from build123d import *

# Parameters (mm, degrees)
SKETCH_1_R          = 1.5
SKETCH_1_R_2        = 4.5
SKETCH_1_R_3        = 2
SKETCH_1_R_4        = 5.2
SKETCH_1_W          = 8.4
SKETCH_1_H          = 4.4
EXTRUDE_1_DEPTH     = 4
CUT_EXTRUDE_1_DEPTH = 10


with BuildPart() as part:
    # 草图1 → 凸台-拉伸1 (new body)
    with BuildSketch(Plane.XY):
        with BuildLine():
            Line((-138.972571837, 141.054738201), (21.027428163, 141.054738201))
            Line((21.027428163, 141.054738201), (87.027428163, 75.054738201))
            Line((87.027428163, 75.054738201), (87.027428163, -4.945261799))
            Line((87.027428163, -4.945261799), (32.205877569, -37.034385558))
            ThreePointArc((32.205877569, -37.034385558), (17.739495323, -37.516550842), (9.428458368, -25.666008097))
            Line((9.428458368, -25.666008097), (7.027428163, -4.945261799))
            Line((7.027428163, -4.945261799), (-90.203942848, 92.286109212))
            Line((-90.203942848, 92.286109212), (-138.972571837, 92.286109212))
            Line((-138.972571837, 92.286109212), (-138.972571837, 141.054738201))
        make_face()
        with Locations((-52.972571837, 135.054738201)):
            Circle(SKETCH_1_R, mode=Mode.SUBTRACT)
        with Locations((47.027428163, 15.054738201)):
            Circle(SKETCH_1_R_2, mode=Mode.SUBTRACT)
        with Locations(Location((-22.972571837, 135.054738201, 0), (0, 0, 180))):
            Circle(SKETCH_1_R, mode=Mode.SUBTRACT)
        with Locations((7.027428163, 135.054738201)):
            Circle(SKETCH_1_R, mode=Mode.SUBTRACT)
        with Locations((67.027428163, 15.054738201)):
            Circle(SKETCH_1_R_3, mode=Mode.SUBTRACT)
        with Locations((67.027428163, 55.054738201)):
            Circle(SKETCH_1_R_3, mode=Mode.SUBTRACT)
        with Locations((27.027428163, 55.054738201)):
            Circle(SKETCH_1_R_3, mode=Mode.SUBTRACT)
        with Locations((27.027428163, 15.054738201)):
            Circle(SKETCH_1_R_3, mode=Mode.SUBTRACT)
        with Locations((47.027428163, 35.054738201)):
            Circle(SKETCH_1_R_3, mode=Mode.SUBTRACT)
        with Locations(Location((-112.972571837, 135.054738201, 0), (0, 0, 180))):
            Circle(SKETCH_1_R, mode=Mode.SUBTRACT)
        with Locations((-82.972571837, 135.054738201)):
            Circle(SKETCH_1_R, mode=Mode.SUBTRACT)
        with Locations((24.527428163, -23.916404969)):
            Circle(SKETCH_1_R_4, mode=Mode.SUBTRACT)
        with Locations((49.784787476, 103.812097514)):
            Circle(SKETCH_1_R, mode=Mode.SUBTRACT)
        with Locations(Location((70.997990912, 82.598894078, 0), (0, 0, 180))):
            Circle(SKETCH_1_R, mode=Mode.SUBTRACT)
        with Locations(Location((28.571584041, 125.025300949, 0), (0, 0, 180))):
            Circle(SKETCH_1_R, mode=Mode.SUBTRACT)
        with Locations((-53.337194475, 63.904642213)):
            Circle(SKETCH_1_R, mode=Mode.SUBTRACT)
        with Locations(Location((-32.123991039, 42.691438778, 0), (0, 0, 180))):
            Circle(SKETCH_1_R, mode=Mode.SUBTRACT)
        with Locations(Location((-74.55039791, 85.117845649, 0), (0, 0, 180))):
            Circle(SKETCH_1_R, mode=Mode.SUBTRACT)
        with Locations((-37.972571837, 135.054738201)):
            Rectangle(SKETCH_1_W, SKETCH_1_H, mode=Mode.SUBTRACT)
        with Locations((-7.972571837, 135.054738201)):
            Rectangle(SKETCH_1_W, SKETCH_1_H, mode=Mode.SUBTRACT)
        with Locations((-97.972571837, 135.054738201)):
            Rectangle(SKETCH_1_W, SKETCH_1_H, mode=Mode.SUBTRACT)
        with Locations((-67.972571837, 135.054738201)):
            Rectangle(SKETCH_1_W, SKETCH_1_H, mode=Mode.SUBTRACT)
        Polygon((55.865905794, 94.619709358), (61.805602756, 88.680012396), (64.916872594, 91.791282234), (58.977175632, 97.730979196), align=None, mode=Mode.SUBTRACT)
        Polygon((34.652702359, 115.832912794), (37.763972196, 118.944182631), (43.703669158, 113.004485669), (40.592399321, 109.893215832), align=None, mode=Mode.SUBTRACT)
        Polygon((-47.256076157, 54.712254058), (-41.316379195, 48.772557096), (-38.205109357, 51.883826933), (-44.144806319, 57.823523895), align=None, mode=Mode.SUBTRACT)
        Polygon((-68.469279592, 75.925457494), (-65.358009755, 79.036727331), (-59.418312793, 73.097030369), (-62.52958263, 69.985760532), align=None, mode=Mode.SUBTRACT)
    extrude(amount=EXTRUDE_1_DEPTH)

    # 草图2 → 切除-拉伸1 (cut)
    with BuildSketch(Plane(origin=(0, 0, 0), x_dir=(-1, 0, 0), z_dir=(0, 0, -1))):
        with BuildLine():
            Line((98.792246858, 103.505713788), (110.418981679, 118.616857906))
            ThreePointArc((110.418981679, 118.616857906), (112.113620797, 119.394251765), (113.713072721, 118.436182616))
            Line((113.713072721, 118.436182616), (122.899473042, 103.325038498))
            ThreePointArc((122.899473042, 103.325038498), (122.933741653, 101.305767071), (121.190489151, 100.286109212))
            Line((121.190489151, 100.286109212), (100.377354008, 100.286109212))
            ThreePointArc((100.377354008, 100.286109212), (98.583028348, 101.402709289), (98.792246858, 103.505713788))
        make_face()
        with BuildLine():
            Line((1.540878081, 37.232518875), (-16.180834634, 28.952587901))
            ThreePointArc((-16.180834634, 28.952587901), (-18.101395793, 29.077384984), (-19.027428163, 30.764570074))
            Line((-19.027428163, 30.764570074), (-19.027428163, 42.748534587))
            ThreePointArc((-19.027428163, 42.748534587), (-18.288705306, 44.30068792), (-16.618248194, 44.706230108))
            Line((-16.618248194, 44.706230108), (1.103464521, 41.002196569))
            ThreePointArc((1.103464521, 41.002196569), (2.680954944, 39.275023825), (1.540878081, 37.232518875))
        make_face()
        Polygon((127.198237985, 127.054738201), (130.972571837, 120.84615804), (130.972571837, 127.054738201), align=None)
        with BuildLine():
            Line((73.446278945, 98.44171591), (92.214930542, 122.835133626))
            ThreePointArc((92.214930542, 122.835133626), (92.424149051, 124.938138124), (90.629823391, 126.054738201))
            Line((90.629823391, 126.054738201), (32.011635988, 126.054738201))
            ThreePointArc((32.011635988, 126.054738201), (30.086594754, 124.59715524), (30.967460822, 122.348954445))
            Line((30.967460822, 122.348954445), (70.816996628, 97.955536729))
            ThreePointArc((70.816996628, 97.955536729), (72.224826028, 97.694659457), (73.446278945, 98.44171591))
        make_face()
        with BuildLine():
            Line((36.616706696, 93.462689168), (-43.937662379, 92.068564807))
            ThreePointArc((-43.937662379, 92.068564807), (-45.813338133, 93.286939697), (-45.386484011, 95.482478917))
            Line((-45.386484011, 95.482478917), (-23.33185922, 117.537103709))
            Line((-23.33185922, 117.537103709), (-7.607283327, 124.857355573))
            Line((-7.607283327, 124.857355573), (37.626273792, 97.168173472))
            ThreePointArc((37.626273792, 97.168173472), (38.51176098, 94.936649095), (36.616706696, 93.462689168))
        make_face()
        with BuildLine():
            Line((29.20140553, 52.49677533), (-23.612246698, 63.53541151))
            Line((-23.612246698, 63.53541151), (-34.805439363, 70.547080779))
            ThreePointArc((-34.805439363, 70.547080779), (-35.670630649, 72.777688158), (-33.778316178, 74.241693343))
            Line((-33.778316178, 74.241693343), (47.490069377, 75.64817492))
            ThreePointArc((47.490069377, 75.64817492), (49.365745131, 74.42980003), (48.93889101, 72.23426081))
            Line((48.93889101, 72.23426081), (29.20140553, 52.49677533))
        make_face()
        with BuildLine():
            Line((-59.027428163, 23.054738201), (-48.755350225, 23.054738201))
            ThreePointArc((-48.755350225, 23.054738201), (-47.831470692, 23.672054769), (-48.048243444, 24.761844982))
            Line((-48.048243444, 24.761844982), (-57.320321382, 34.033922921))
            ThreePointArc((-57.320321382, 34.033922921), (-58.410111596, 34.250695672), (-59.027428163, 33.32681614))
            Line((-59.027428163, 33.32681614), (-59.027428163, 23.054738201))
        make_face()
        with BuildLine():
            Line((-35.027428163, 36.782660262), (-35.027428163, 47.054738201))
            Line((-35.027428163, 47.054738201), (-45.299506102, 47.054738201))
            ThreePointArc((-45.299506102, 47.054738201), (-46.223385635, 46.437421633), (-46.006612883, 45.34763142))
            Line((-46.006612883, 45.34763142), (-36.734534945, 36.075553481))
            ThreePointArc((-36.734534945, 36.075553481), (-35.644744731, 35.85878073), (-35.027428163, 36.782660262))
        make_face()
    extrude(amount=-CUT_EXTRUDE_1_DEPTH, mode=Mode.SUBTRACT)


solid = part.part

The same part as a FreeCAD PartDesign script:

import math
import FreeCAD as App
import Part
import Sketcher
from FreeCAD import Vector
Q = App.Units.Quantity

doc = App.newDocument("Part")
params = doc.addObject("Spreadsheet::Sheet", "Params")
for row, (alias, value) in enumerate([
    ("sketch1_diameter", "4 mm"),
    ("sketch1_diameter2", "9 mm"),
    ("sketch1_diameter3", "3 mm"),
    ("sketch1_diameter4", "10.4 mm"),
    ("sketch1_radius", "15.2 mm"),
    ("pad1_length", "4 mm"),
    ("sketch2_radius", "2 mm"),
    ("sketch2_radius2", "1 mm"),
    ("pocket1_length", "10 mm"),
], start=1):
    params.set(f"A{row}", alias)
    params.set(f"B{row}", "=" + value)
    params.setAlias(f"B{row}", alias)

body = doc.addObject("PartDesign::Body", "Body")

sketch1 = body.newObject("Sketcher::SketchObject", "Sketch")
sketch1.AttachmentSupport = (doc.getObject("XY_Plane"), [""])
sketch1.MapMode = "FlatFace"
sketch1.addGeometry([
    Part.LineSegment(Vector(21.027428, 141.054738, 0), Vector(-138.972572, 141.054738, 0)),
    Part.LineSegment(Vector(-138.972572, 141.054738, 0), Vector(-138.972572, 92.286109, 0)),
    Part.LineSegment(Vector(-138.972572, 92.286109, 0), Vector(-90.203943, 92.286109, 0)),
    Part.LineSegment(Vector(-90.203943, 92.286109, 0), Vector(7.027428, -4.945262, 0)),
    Part.LineSegment(Vector(7.027428, -4.945262, 0), Vector(9.428458, -25.666008, 0)),
    Part.ArcOfCircle(Part.Circle(Vector(24.527428, -23.916405, 0), Vector(0, 0, 1), 15.2), math.radians(-173.390292), math.radians(-59.65795)),
    Part.LineSegment(Vector(32.205878, -37.034386, 0), Vector(87.027428, -4.945262, 0)),
    Part.LineSegment(Vector(87.027428, -4.945262, 0), Vector(87.027428, 75.054738, 0)),
    Part.LineSegment(Vector(87.027428, 75.054738, 0), Vector(21.027428, 141.054738, 0)),
    Part.Circle(Vector(24.527428, -23.916405, 0), Vector(0, 0, 1), 5.2),
    Part.Circle(Vector(67.027428, 15.054738, 0), Vector(0, 0, 1), 2),
    Part.Circle(Vector(47.027428, 15.054738, 0), Vector(0, 0, 1), 4.5),
    Part.Circle(Vector(27.027428, 15.054738, 0), Vector(0, 0, 1), 2),
    Part.Circle(Vector(47.027428, 35.054738, 0), Vector(0, 0, 1), 2),
    Part.Circle(Vector(-32.123991, 42.691439, 0), Vector(0, 0, 1), 1.5),
    Part.LineSegment(Vector(-47.256076, 54.712254, 0), Vector(-44.144806, 57.823524, 0)),
    Part.LineSegment(Vector(-44.144806, 57.823524, 0), Vector(-38.205109, 51.883827, 0)),
    Part.LineSegment(Vector(-38.205109, 51.883827, 0), Vector(-41.316379, 48.772557, 0)),
    Part.LineSegment(Vector(-41.316379, 48.772557, 0), Vector(-47.256076, 54.712254, 0)),
    Part.Circle(Vector(67.027428, 55.054738, 0), Vector(0, 0, 1), 2),
    Part.Circle(Vector(27.027428, 55.054738, 0), Vector(0, 0, 1), 2),
    Part.Circle(Vector(70.997991, 82.598894, 0), Vector(0, 0, 1), 1.5),
    Part.LineSegment(Vector(55.865906, 94.619709, 0), Vector(58.977176, 97.730979, 0)),
    Part.LineSegment(Vector(58.977176, 97.730979, 0), Vector(64.916873, 91.791282, 0)),
    Part.LineSegment(Vector(64.916873, 91.791282, 0), Vector(61.805603, 88.680012, 0)),
    Part.LineSegment(Vector(61.805603, 88.680012, 0), Vector(55.865906, 94.619709, 0)),
    Part.Circle(Vector(49.784787, 103.812098, 0), Vector(0, 0, 1), 1.5),
    Part.LineSegment(Vector(34.652702, 115.832913, 0), Vector(37.763972, 118.944183, 0)),
    Part.LineSegment(Vector(37.763972, 118.944183, 0), Vector(43.703669, 113.004486, 0)),
    Part.LineSegment(Vector(43.703669, 113.004486, 0), Vector(40.592399, 109.893216, 0)),
    Part.LineSegment(Vector(40.592399, 109.893216, 0), Vector(34.652702, 115.832913, 0)),
    Part.Circle(Vector(28.571584, 125.025301, 0), Vector(0, 0, 1), 1.5),
    Part.Circle(Vector(7.027428, 135.054738, 0), Vector(0, 0, 1), 1.5),
    Part.LineSegment(Vector(-12.172572, 132.854738, 0), Vector(-12.172572, 137.254738, 0)),
    Part.LineSegment(Vector(-12.172572, 137.254738, 0), Vector(-3.772572, 137.254738, 0)),
    Part.LineSegment(Vector(-3.772572, 137.254738, 0), Vector(-3.772572, 132.854738, 0)),
    Part.LineSegment(Vector(-3.772572, 132.854738, 0), Vector(-12.172572, 132.854738, 0)),
    Part.Circle(Vector(-53.337194, 63.904642, 0), Vector(0, 0, 1), 1.5),
    Part.LineSegment(Vector(-68.46928, 75.925457, 0), Vector(-65.35801, 79.036727, 0)),
    Part.LineSegment(Vector(-65.35801, 79.036727, 0), Vector(-59.418313, 73.09703, 0)),
    Part.LineSegment(Vector(-59.418313, 73.09703, 0), Vector(-62.529583, 69.985761, 0)),
    Part.LineSegment(Vector(-62.529583, 69.985761, 0), Vector(-68.46928, 75.925457, 0)),
    Part.Circle(Vector(-74.550398, 85.117846, 0), Vector(0, 0, 1), 1.5),
    Part.Circle(Vector(-22.972572, 135.054738, 0), Vector(0, 0, 1), 1.5),
    Part.LineSegment(Vector(-42.172572, 132.854738, 0), Vector(-42.172572, 137.254738, 0)),
    Part.LineSegment(Vector(-42.172572, 137.254738, 0), Vector(-33.772572, 137.254738, 0)),
    Part.LineSegment(Vector(-33.772572, 137.254738, 0), Vector(-33.772572, 132.854738, 0)),
    Part.LineSegment(Vector(-33.772572, 132.854738, 0), Vector(-42.172572, 132.854738, 0)),
    Part.Circle(Vector(-52.972572, 135.054738, 0), Vector(0, 0, 1), 1.5),
    Part.LineSegment(Vector(-72.172572, 132.854738, 0), Vector(-72.172572, 137.254738, 0)),
    Part.LineSegment(Vector(-72.172572, 137.254738, 0), Vector(-63.772572, 137.254738, 0)),
    Part.LineSegment(Vector(-63.772572, 137.254738, 0), Vector(-63.772572, 132.854738, 0)),
    Part.LineSegment(Vector(-63.772572, 132.854738, 0), Vector(-72.172572, 132.854738, 0)),
    Part.Circle(Vector(-82.972572, 135.054738, 0), Vector(0, 0, 1), 1.5),
    Part.LineSegment(Vector(-102.172572, 132.854738, 0), Vector(-102.172572, 137.254738, 0)),
    Part.LineSegment(Vector(-102.172572, 137.254738, 0), Vector(-93.772572, 137.254738, 0)),
    Part.LineSegment(Vector(-93.772572, 137.254738, 0), Vector(-93.772572, 132.854738, 0)),
    Part.LineSegment(Vector(-93.772572, 132.854738, 0), Vector(-102.172572, 132.854738, 0)),
    Part.Circle(Vector(-112.972572, 135.054738, 0), Vector(0, 0, 1), 1.5),
], False)
sketch1.addConstraint([
    Sketcher.Constraint("Coincident", 0, 2, 1, 1),
    Sketcher.Constraint("Coincident", 1, 2, 2, 1),
    Sketcher.Constraint("Coincident", 2, 2, 3, 1),
    Sketcher.Constraint("Coincident", 3, 2, 4, 1),
    Sketcher.Constraint("Tangent", 4, 2, 5, 1),
    Sketcher.Constraint("Tangent", 5, 2, 6, 1),
    Sketcher.Constraint("Coincident", 6, 2, 7, 1),
    Sketcher.Constraint("Coincident", 7, 2, 8, 1),
    Sketcher.Constraint("Coincident", 8, 2, 0, 1),
    Sketcher.Constraint("Coincident", 15, 2, 16, 1),
    Sketcher.Constraint("Coincident", 16, 2, 17, 1),
    Sketcher.Constraint("Coincident", 17, 2, 18, 1),
    Sketcher.Constraint("Coincident", 18, 2, 15, 1),
    Sketcher.Constraint("Coincident", 22, 2, 23, 1),
    Sketcher.Constraint("Coincident", 23, 2, 24, 1),
    Sketcher.Constraint("Coincident", 24, 2, 25, 1),
    Sketcher.Constraint("Coincident", 25, 2, 22, 1),
    Sketcher.Constraint("Coincident", 27, 2, 28, 1),
    Sketcher.Constraint("Coincident", 28, 2, 29, 1),
    Sketcher.Constraint("Coincident", 29, 2, 30, 1),
    Sketcher.Constraint("Coincident", 30, 2, 27, 1),
    Sketcher.Constraint("Coincident", 33, 2, 34, 1),
    Sketcher.Constraint("Coincident", 34, 2, 35, 1),
    Sketcher.Constraint("Coincident", 35, 2, 36, 1),
    Sketcher.Constraint("Coincident", 36, 2, 33, 1),
    Sketcher.Constraint("Coincident", 38, 2, 39, 1),
    Sketcher.Constraint("Coincident", 39, 2, 40, 1),
    Sketcher.Constraint("Coincident", 40, 2, 41, 1),
    Sketcher.Constraint("Coincident", 41, 2, 38, 1),
    Sketcher.Constraint("Coincident", 44, 2, 45, 1),
    Sketcher.Constraint("Coincident", 45, 2, 46, 1),
    Sketcher.Constraint("Coincident", 46, 2, 47, 1),
    Sketcher.Constraint("Coincident", 47, 2, 44, 1),
    Sketcher.Constraint("Coincident", 49, 2, 50, 1),
    Sketcher.Constraint("Coincident", 50, 2, 51, 1),
    Sketcher.Constraint("Coincident", 51, 2, 52, 1),
    Sketcher.Constraint("Coincident", 52, 2, 49, 1),
    Sketcher.Constraint("Coincident", 54, 2, 55, 1),
    Sketcher.Constraint("Coincident", 55, 2, 56, 1),
    Sketcher.Constraint("Coincident", 56, 2, 57, 1),
    Sketcher.Constraint("Coincident", 57, 2, 54, 1),
    Sketcher.Constraint("Horizontal", 0),
    Sketcher.Constraint("Vertical", 1),
    Sketcher.Constraint("Horizontal", 2),
    Sketcher.Constraint("Vertical", 7),
    Sketcher.Constraint("Vertical", 33),
    Sketcher.Constraint("Horizontal", 34),
    Sketcher.Constraint("Vertical", 35),
    Sketcher.Constraint("Horizontal", 36),
    Sketcher.Constraint("Vertical", 44),
    Sketcher.Constraint("Horizontal", 45),
    Sketcher.Constraint("Vertical", 46),
    Sketcher.Constraint("Horizontal", 47),
    Sketcher.Constraint("Vertical", 49),
    Sketcher.Constraint("Horizontal", 50),
    Sketcher.Constraint("Vertical", 51),
    Sketcher.Constraint("Horizontal", 52),
    Sketcher.Constraint("Vertical", 54),
    Sketcher.Constraint("Horizontal", 55),
    Sketcher.Constraint("Vertical", 56),
    Sketcher.Constraint("Horizontal", 57),
    Sketcher.Constraint("Coincident", 9, 3, 5, 3),
    Sketcher.Constraint("Equal", 10, 12),
    Sketcher.Constraint("Equal", 12, 13),
    Sketcher.Constraint("Equal", 13, 19),
    Sketcher.Constraint("Equal", 19, 20),
    Sketcher.Constraint("Equal", 14, 21),
    Sketcher.Constraint("Equal", 21, 26),
    Sketcher.Constraint("Equal", 26, 31),
    Sketcher.Constraint("Equal", 31, 32),
    Sketcher.Constraint("Equal", 32, 37),
    Sketcher.Constraint("Equal", 37, 42),
    Sketcher.Constraint("Equal", 42, 43),
    Sketcher.Constraint("Equal", 43, 48),
    Sketcher.Constraint("Equal", 48, 53),
    Sketcher.Constraint("Equal", 53, 58),
    Sketcher.Constraint("Parallel", 3, 8),
    Sketcher.Constraint("Perpendicular", 8, 15),
    Sketcher.Constraint("Perpendicular", 15, 16),
    Sketcher.Constraint("Perpendicular", 16, 17),
    Sketcher.Constraint("Perpendicular", 17, 18),
    Sketcher.Constraint("Perpendicular", 18, 22),
    Sketcher.Constraint("Perpendicular", 22, 23),
    Sketcher.Constraint("Perpendicular", 23, 24),
    Sketcher.Constraint("Perpendicular", 24, 25),
    Sketcher.Constraint("Perpendicular", 25, 27),
    Sketcher.Constraint("Perpendicular", 27, 28),
    Sketcher.Constraint("Perpendicular", 28, 29),
    Sketcher.Constraint("Perpendicular", 29, 30),
    Sketcher.Constraint("Perpendicular", 30, 38),
    Sketcher.Constraint("Perpendicular", 38, 39),
    Sketcher.Constraint("Perpendicular", 39, 40),
    Sketcher.Constraint("Perpendicular", 40, 41),
    Sketcher.Constraint("Horizontal", 10, 3, 11, 3),
    Sketcher.Constraint("Horizontal", 11, 3, 12, 3),
    Sketcher.Constraint("Horizontal", 19, 3, 20, 3),
    Sketcher.Constraint("Horizontal", 32, 3, 43, 3),
    Sketcher.Constraint("Horizontal", 43, 3, 48, 3),
    Sketcher.Constraint("Horizontal", 48, 3, 53, 3),
    Sketcher.Constraint("Horizontal", 53, 3, 58, 3),
    Sketcher.Constraint("Horizontal", 3, 2, 6, 2),
    Sketcher.Constraint("Horizontal", 34, 2, 44, 2),
    Sketcher.Constraint("Horizontal", 36, 2, 46, 2),
    Sketcher.Constraint("Horizontal", 45, 2, 49, 2),
    Sketcher.Constraint("Horizontal", 47, 2, 51, 2),
    Sketcher.Constraint("Horizontal", 50, 2, 54, 2),
    Sketcher.Constraint("Horizontal", 52, 2, 56, 2),
    Sketcher.Constraint("Vertical", 11, 3, 13, 3),
    Sketcher.Constraint("Vertical", 10, 3, 19, 3),
    Sketcher.Constraint("Vertical", 12, 3, 20, 3),
    Sketcher.Constraint("Vertical", 32, 3, 3, 2),
    Sketcher.Constraint("Equal", 36, 45),
    Sketcher.Constraint("Equal", 47, 50),
    Sketcher.Constraint("Equal", 52, 55),
    Sketcher.Constraint("Equal", 2, 1),
    Sketcher.Constraint("Equal", 17, 22),
    Sketcher.Constraint("Equal", 18, 23),
    Sketcher.Constraint("Equal", 24, 27),
    Sketcher.Constraint("Equal", 25, 28),
    Sketcher.Constraint("Equal", 29, 38),
    Sketcher.Constraint("Equal", 30, 39),
    Sketcher.Constraint("Diameter", 10, 4.0),
    Sketcher.Constraint("Diameter", 11, 9.0),
    Sketcher.Constraint("Diameter", 14, 3.0),
    Sketcher.Constraint("Diameter", 9, 10.4),
    Sketcher.Constraint("Radius", 5, 15.2),
    Sketcher.Constraint("DistanceX", 0, 2, 0, 1, 160.0),
    Sketcher.Constraint("DistanceY", 7, 1, 7, 2, 80.0),
    Sketcher.Constraint("Angle", 3, Q("-45 deg")),
    Sketcher.Constraint("DistanceX", 34, 1, 34, 2, 8.4),
    Sketcher.Constraint("DistanceY", 33, 1, 33, 2, 4.4),
    Sketcher.Constraint("DistanceX", 11, 3, 10, 3, 20.0),
    Sketcher.Constraint("DistanceX", 12, 3, 11, 3, 20.0),
    Sketcher.Constraint("DistanceY", 11, 3, 13, 3, 20.0),
    Sketcher.Constraint("DistanceY", 13, 3, 19, 3, 20.0),
    Sketcher.Constraint("DistanceX", 32, 3, 20, 3, 20.0),
    Sketcher.Constraint("DistanceY", 20, 3, 32, 3, 80.0),
    Sketcher.Constraint("DistanceX", 43, 3, 32, 3, 30.0),
    Sketcher.Constraint("DistanceX", 48, 3, 43, 3, 30.0),
    Sketcher.Constraint("DistanceX", 53, 3, 48, 3, 30.0),
    Sketcher.Constraint("DistanceX", 58, 3, 53, 3, 30.0),
    Sketcher.Constraint("DistanceX", 0, 2, 58, 3, 26.0),
    Sketcher.Constraint("DistanceY", 58, 3, 0, 2, 6.0),
    Sketcher.Constraint("DistanceX", 44, 2, 33, 2, 30.0),
    Sketcher.Constraint("DistanceX", 49, 2, 44, 2, 30.0),
    Sketcher.Constraint("DistanceX", 54, 2, 49, 2, 30.0),
    Sketcher.Constraint("Distance", 15, 4.4),
    Sketcher.Constraint("Distance", 16, 8.4),
    Sketcher.Constraint("DistanceX", 9, 3, 10, 3, 42.5),
    Sketcher.Constraint("DistanceX", 43, 3, 33, 2, 10.8),
    Sketcher.Constraint("DistanceY", 43, 3, 33, 2, 2.2),
    Sketcher.Constraint("DistanceX", 2, 1, 2, 2, 48.768629),
    Sketcher.Constraint("DistanceY", -1, 1, 31, 3, 125.025301),
    Sketcher.Constraint("DistanceX", -1, 1, 29, 2, 40.592399),
    Sketcher.Constraint("DistanceY", 12, 3, 14, 3, 27.636701),
    Sketcher.Constraint("Distance", 6, 63.522549),
    Sketcher.Constraint("DistanceX", -1, 1, 5, 3, 24.527428),
    Sketcher.Constraint("DistanceY", -1, 1, 10, 3, 15.054738),
    Sketcher.Constraint("DistanceX", 14, 3, -1, 1, 32.123991),
    Sketcher.Constraint("DistanceX", -1, 1, 21, 3, 70.997991),
    Sketcher.Constraint("DistanceX", 16, 2, -1, 1, 38.205109),
    Sketcher.Constraint("DistanceY", -1, 1, 22, 2, 97.730979),
    Sketcher.Constraint("DistanceX", 38, 2, -1, 1, 65.35801),
    Sketcher.Constraint("DistanceY", -1, 1, 39, 2, 73.09703),
    Sketcher.Constraint("DistanceX", 26, 3, 19, 3, 17.242641),
    Sketcher.Constraint("DistanceY", 19, 3, 26, 3, 48.757359),
    Sketcher.Constraint("DistanceX", 37, 3, 31, 3, 81.908779),
    Sketcher.Constraint("DistanceY", 37, 3, 31, 3, 61.120659),
    Sketcher.Constraint("DistanceX", 42, 3, 31, 3, 103.121982),
    Sketcher.Constraint("DistanceX", 2, 2, 37, 3, 36.866748),
    Sketcher.Constraint("DistanceY", 15, 2, 37, 3, 6.081118),
    Sketcher.Constraint("DistanceY", 15, 2, 42, 3, 27.294322),
    Sketcher.Constraint("DistanceX", 26, 3, 22, 2, 9.192388),
    Sketcher.Constraint("DistanceY", 21, 3, 23, 2, 9.192388),
    Sketcher.Constraint("DistanceY", 27, 2, 31, 3, 6.081118),
])
sketch1.setExpression("Constraints[121]", "Params.sketch1_diameter")
sketch1.setExpression("Constraints[122]", "Params.sketch1_diameter2")
sketch1.setExpression("Constraints[123]", "Params.sketch1_diameter3")
sketch1.setExpression("Constraints[124]", "Params.sketch1_diameter4")
sketch1.setExpression("Constraints[125]", "Params.sketch1_radius")
pad1 = body.newObject("PartDesign::Pad", "Pad")
pad1.Profile = sketch1
pad1.setExpression("Length", "Params.pad1_length")

sketch2 = body.newObject("Sketcher::SketchObject", "Sketch001")
sketch2.AttachmentSupport = (doc.getObject("XY_Plane"), [""])
sketch2.MapMode = "FlatFace"
sketch2.addGeometry([
    Part.LineSegment(Vector(-110.418982, 118.616858, 0), Vector(-98.792247, 103.505714, 0)),
    Part.ArcOfCircle(Part.Circle(Vector(-100.377354, 102.286109, 0), Vector(0, 0, 1), 2), math.radians(-90), math.radians(37.575208)),
    Part.LineSegment(Vector(-100.377354, 100.286109, 0), Vector(-121.190489, 100.286109, 0)),
    Part.ArcOfCircle(Part.Circle(Vector(-121.190489, 102.286109, 0), Vector(0, 0, 1), 2), math.radians(148.703652), math.radians(270)),
    Part.LineSegment(Vector(-122.899473, 103.325038, 0), Vector(-113.713073, 118.436183, 0)),
    Part.ArcOfCircle(Part.Circle(Vector(-112.004089, 117.397253, 0), Vector(0, 0, 1), 2), math.radians(37.575208), math.radians(148.703652)),
    Part.LineSegment(Vector(16.180835, 28.952588, 0), Vector(-1.540878, 37.232519, 0)),
    Part.ArcOfCircle(Part.Circle(Vector(-0.694285, 39.044501, 0), Vector(0, 0, 1), 2), math.radians(101.805498), math.radians(244.957098)),
    Part.LineSegment(Vector(-1.103465, 41.002197, 0), Vector(16.618248, 44.70623, 0)),
    Part.ArcOfCircle(Part.Circle(Vector(17.027428, 42.748535, 0), Vector(0, 0, 1), 2), math.radians(0), math.radians(101.805498)),
    Part.LineSegment(Vector(19.027428, 42.748535, 0), Vector(19.027428, 30.76457, 0)),
    Part.ArcOfCircle(Part.Circle(Vector(17.027428, 30.76457, 0), Vector(0, 0, 1), 2), math.radians(-115.042902), math.radians(0)),
    Part.LineSegment(Vector(-127.198238, 127.054738, 0), Vector(-130.972572, 120.846158, 0)),
    Part.LineSegment(Vector(-130.972572, 120.846158, 0), Vector(-130.972572, 127.054738, 0)),
    Part.LineSegment(Vector(-130.972572, 127.054738, 0), Vector(-127.198238, 127.054738, 0)),
    Part.LineSegment(Vector(-73.446279, 98.441716, 0), Vector(-92.214931, 122.835134, 0)),
    Part.ArcOfCircle(Part.Circle(Vector(-90.629823, 124.054738, 0), Vector(0, 0, 1), 2), math.radians(90), math.radians(217.575208)),
    Part.LineSegment(Vector(-90.629823, 126.054738, 0), Vector(-32.011636, 126.054738, 0)),
    Part.ArcOfCircle(Part.Circle(Vector(-32.011636, 124.054738, 0), Vector(0, 0, 1), 2), math.radians(-58.527613), math.radians(90)),
    Part.LineSegment(Vector(-30.967461, 122.348954, 0), Vector(-70.816997, 97.955537, 0)),
    Part.ArcOfCircle(Part.Circle(Vector(-71.861172, 99.66132, 0), Vector(0, 0, 1), 2), math.radians(-142.424792), math.radians(-58.527613)),
    Part.LineSegment(Vector(43.937662, 92.068565, 0), Vector(-36.616707, 93.462689, 0)),
    Part.ArcOfCircle(Part.Circle(Vector(-36.582099, 95.46239, 0), Vector(0, 0, 1), 2), math.radians(121.472387), math.radians(269.008502)),
    Part.LineSegment(Vector(-37.626274, 97.168173, 0), Vector(7.607283, 124.857356, 0)),
    Part.LineSegment(Vector(7.607283, 124.857356, 0), Vector(23.331859, 117.537104, 0)),
    Part.LineSegment(Vector(23.331859, 117.537104, 0), Vector(45.386484, 95.482479, 0)),
    Part.ArcOfCircle(Part.Circle(Vector(43.97227, 94.068265, 0), Vector(0, 0, 1), 2), math.radians(-90.991498), math.radians(45)),
    Part.LineSegment(Vector(23.612247, 63.535412, 0), Vector(-29.201406, 52.496775, 0)),
    Part.LineSegment(Vector(-29.201406, 52.496775, 0), Vector(-48.938891, 72.234261, 0)),
    Part.ArcOfCircle(Part.Circle(Vector(-47.524677, 73.648474, 0), Vector(0, 0, 1), 2), math.radians(89.008502), math.radians(225)),
    Part.LineSegment(Vector(-47.490069, 75.648175, 0), Vector(33.778316, 74.241693, 0)),
    Part.ArcOfCircle(Part.Circle(Vector(33.743708, 72.241993, 0), Vector(0, 0, 1), 2), math.radians(-57.93604), math.radians(89.008502)),
    Part.LineSegment(Vector(34.805439, 70.547081, 0), Vector(23.612247, 63.535412, 0)),
    Part.LineSegment(Vector(59.027428, 23.054738, 0), Vector(48.75535, 23.054738, 0)),
    Part.ArcOfCircle(Part.Circle(Vector(48.75535, 24.054738, 0), Vector(0, 0, 1), 1), math.radians(135), math.radians(270)),
    Part.LineSegment(Vector(48.048243, 24.761845, 0), Vector(57.320321, 34.033923, 0)),
    Part.ArcOfCircle(Part.Circle(Vector(58.027428, 33.326816, 0), Vector(0, 0, 1), 1), math.radians(0), math.radians(135)),
    Part.LineSegment(Vector(59.027428, 33.326816, 0), Vector(59.027428, 23.054738, 0)),
    Part.LineSegment(Vector(35.027428, 36.78266, 0), Vector(35.027428, 47.054738, 0)),
    Part.LineSegment(Vector(35.027428, 47.054738, 0), Vector(45.299506, 47.054738, 0)),
    Part.ArcOfCircle(Part.Circle(Vector(45.299506, 46.054738, 0), Vector(0, 0, 1), 1), math.radians(-45), math.radians(90)),
    Part.LineSegment(Vector(46.006613, 45.347631, 0), Vector(36.734535, 36.075553, 0)),
    Part.ArcOfCircle(Part.Circle(Vector(36.027428, 36.78266, 0), Vector(0, 0, 1), 1), math.radians(-180), math.radians(-45)),
], False)
sketch2.addConstraint([
    Sketcher.Constraint("Tangent", 0, 2, 1, 2),
    Sketcher.Constraint("Tangent", 1, 1, 2, 1),
    Sketcher.Constraint("Tangent", 2, 2, 3, 2),
    Sketcher.Constraint("Tangent", 3, 1, 4, 1),
    Sketcher.Constraint("Tangent", 4, 2, 5, 2),
    Sketcher.Constraint("Tangent", 5, 1, 0, 1),
    Sketcher.Constraint("Tangent", 6, 2, 7, 2),
    Sketcher.Constraint("Tangent", 7, 1, 8, 1),
    Sketcher.Constraint("Tangent", 8, 2, 9, 2),
    Sketcher.Constraint("Tangent", 9, 1, 10, 1),
    Sketcher.Constraint("Tangent", 10, 2, 11, 2),
    Sketcher.Constraint("Tangent", 11, 1, 6, 1),
    Sketcher.Constraint("Coincident", 12, 2, 13, 1),
    Sketcher.Constraint("Coincident", 13, 2, 14, 1),
    Sketcher.Constraint("Coincident", 14, 2, 12, 1),
    Sketcher.Constraint("Tangent", 15, 2, 16, 2),
    Sketcher.Constraint("Tangent", 16, 1, 17, 1),
    Sketcher.Constraint("Tangent", 17, 2, 18, 2),
    Sketcher.Constraint("Tangent", 18, 1, 19, 1),
    Sketcher.Constraint("Tangent", 19, 2, 20, 2),
    Sketcher.Constraint("Tangent", 20, 1, 15, 1),
    Sketcher.Constraint("Tangent", 21, 2, 22, 2),
    Sketcher.Constraint("Tangent", 22, 1, 23, 1),
    Sketcher.Constraint("Coincident", 23, 2, 24, 1),
    Sketcher.Constraint("Coincident", 24, 2, 25, 1),
    Sketcher.Constraint("Tangent", 25, 2, 26, 2),
    Sketcher.Constraint("Tangent", 26, 1, 21, 1),
    Sketcher.Constraint("Coincident", 27, 2, 28, 1),
    Sketcher.Constraint("Tangent", 28, 2, 29, 2),
    Sketcher.Constraint("Tangent", 29, 1, 30, 1),
    Sketcher.Constraint("Tangent", 30, 2, 31, 2),
    Sketcher.Constraint("Tangent", 31, 1, 32, 1),
    Sketcher.Constraint("Coincident", 32, 2, 27, 1),
    Sketcher.Constraint("Tangent", 33, 2, 34, 2),
    Sketcher.Constraint("Tangent", 34, 1, 35, 1),
    Sketcher.Constraint("Tangent", 35, 2, 36, 2),
    Sketcher.Constraint("Tangent", 36, 1, 37, 1),
    Sketcher.Constraint("Coincident", 37, 2, 33, 1),
    Sketcher.Constraint("Coincident", 38, 2, 39, 1),
    Sketcher.Constraint("Tangent", 39, 2, 40, 2),
    Sketcher.Constraint("Tangent", 40, 1, 41, 1),
    Sketcher.Constraint("Tangent", 41, 2, 42, 2),
    Sketcher.Constraint("Tangent", 42, 1, 38, 1),
    Sketcher.Constraint("Horizontal", 2),
    Sketcher.Constraint("Vertical", 10),
    Sketcher.Constraint("Vertical", 13),
    Sketcher.Constraint("Horizontal", 14),
    Sketcher.Constraint("Horizontal", 17),
    Sketcher.Constraint("Horizontal", 33),
    Sketcher.Constraint("Vertical", 37),
    Sketcher.Constraint("Vertical", 38),
    Sketcher.Constraint("Horizontal", 39),
    Sketcher.Constraint("Equal", 1, 3),
    Sketcher.Constraint("Equal", 3, 5),
    Sketcher.Constraint("Equal", 5, 7),
    Sketcher.Constraint("Equal", 7, 9),
    Sketcher.Constraint("Equal", 9, 11),
    Sketcher.Constraint("Equal", 11, 16),
    Sketcher.Constraint("Equal", 16, 18),
    Sketcher.Constraint("Equal", 18, 20),
    Sketcher.Constraint("Equal", 20, 22),
    Sketcher.Constraint("Equal", 22, 26),
    Sketcher.Constraint("Equal", 26, 29),
    Sketcher.Constraint("Equal", 29, 31),
    Sketcher.Constraint("Equal", 34, 36),
    Sketcher.Constraint("Equal", 36, 40),
    Sketcher.Constraint("Equal", 40, 42),
    Sketcher.Constraint("Parallel", 4, 12),
    Sketcher.Constraint("Parallel", 0, 15),
    Sketcher.Constraint("Parallel", 19, 23),
    Sketcher.Constraint("Parallel", 8, 27),
    Sketcher.Constraint("Parallel", 25, 28),
    Sketcher.Constraint("Parallel", 21, 30),
    Sketcher.Constraint("Perpendicular", 28, 35),
    Sketcher.Constraint("Parallel", 35, 41),
    Sketcher.Constraint("Equal", 33, 39),
    Sketcher.Constraint("Equal", 39, 37),
    Sketcher.Constraint("Radius", 1, 2.0),
    Sketcher.Constraint("Radius", 34, 1.0),
    Sketcher.Constraint("DistanceX", 11, 3, 36, 3, 41.0),
    Sketcher.Constraint("DistanceY", 34, 3, 40, 3, 22.0),
    Sketcher.Constraint("DistanceX", 9, 3, 42, 3, 19.0),
    Sketcher.Constraint("DistanceY", 29, 1, 22, 1, 21.519999),
    Sketcher.Constraint("DistanceX", 8, 2, 32, 2, 6.993999),
    Sketcher.Constraint("Distance", 0, 19.066401),
    Sketcher.Constraint("Distance", 35, 13.112698),
    Sketcher.Constraint("DistanceY", 13, 1, 13, 2, 6.20858),
    Sketcher.Constraint("DistanceY", -1, 1, 7, 3, 39.044501),
    Sketcher.Constraint("DistanceX", 22, 3, -1, 1, 36.582099),
    Sketcher.Constraint("DistanceX", 3, 3, 5, 3, 9.1864),
    Sketcher.Constraint("DistanceX", 12, 2, 4, 2, 17.259499),
    Sketcher.Constraint("DistanceY", 5, 1, 12, 2, 2.2293),
    Sketcher.Constraint("DistanceY", 3, 1, 13, 2, 23.7297),
    Sketcher.Constraint("DistanceY", 19, 2, 16, 3, 26.099201),
    Sketcher.Constraint("DistanceY", 18, 1, 23, 2, 2.508401),
    Sketcher.Constraint("DistanceX", 23, 2, 25, 2, 37.779201),
    Sketcher.Constraint("DistanceY", 27, 2, 29, 3, 21.151699),
    Sketcher.Constraint("DistanceX", 21, 2, 27, 2, 7.415301),
    Sketcher.Constraint("Distance", 6, 19.560582),
    Sketcher.Constraint("Distance", 21, 80.566432),
    Sketcher.Constraint("Distance", 23, 53.035512),
    Sketcher.Constraint("Distance", 24, 17.344981),
    Sketcher.Constraint("Distance", 25, 31.189949),
    Sketcher.Constraint("Distance", 27, 53.95492),
    Sketcher.Constraint("DistanceY", 10, 2, 10, 1, 11.983965),
    Sketcher.Constraint("DistanceY", -1, 1, 1, 3, 102.286109),
    Sketcher.Constraint("DistanceX", 3, 3, -1, 1, 121.190489),
    Sketcher.Constraint("DistanceX", -1, 1, 9, 3, 17.027428),
    Sketcher.Constraint("DistanceY", -1, 1, 16, 3, 124.054738),
    Sketcher.Constraint("DistanceX", 20, 3, -1, 1, 71.861172),
    Sketcher.Constraint("DistanceX", -1, 1, 31, 3, 33.743708),
    Sketcher.Constraint("DistanceY", -1, 1, 34, 3, 24.054738),
])
sketch2.setExpression("Constraints[77]", "Params.sketch2_radius")
sketch2.setExpression("Constraints[78]", "Params.sketch2_radius2")
pocket1 = body.newObject("PartDesign::Pocket", "Pocket")
pocket1.Profile = sketch2
pocket1.setExpression("Length", "Params.pocket1_length")
pocket1.Reversed = True

doc.recompute()
